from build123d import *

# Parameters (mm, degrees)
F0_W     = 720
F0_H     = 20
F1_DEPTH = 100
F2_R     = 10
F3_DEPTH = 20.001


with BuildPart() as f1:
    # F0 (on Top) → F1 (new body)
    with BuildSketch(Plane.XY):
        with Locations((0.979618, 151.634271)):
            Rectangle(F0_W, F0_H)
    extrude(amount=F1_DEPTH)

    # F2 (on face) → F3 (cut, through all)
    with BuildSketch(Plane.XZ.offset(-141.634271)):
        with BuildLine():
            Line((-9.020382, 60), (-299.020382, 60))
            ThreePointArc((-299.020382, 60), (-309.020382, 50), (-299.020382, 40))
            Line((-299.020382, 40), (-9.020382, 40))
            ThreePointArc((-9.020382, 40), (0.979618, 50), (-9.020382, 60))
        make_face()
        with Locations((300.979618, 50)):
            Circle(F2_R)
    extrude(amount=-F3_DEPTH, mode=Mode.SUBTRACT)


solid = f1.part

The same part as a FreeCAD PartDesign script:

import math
import FreeCAD as App
import Part
import Sketcher

doc = App.newDocument("Part")
params = doc.addObject("Spreadsheet::Sheet", "Params")
for row, (alias, value) in enumerate([
    ("sketch1_width", "720 mm"),
    ("sketch1_height", "20 mm"),
    ("pad1_length", "100 mm"),
    ("sketch2_diameter", "20 mm"),
    ("sketch2_width", "290 mm"),
], start=1):
    params.set(f"A{row}", alias)
    params.set(f"B{row}", "=" + value)
    params.setAlias(f"B{row}", alias)

body = doc.addObject("PartDesign::Body", "Body")

sketch1 = body.newObject("Sketcher::SketchObject", "Sketch")
sketch1.AttachmentSupport = (doc.getObject("XY_Plane"), [""])
sketch1.MapMode = "FlatFace"
sketch1.addGeometry([
    Part.LineSegment(App.Vector(-359, 162, 0), App.Vector(-359, 142, 0)),
    Part.LineSegment(App.Vector(-359, 142, 0), App.Vector(361, 142, 0)),
    Part.LineSegment(App.Vector(361, 142, 0), App.Vector(361, 162, 0)),
    Part.LineSegment(App.Vector(361, 162, 0), App.Vector(-359, 162, 0)),
], False)
sketch1.addConstraint([
    Sketcher.Constraint("Coincident", 0, 2, 1, 1),
    Sketcher.Constraint("Coincident", 1, 2, 2, 1),
    Sketcher.Constraint("Coincident", 2, 2, 3, 1),
    Sketcher.Constraint("Coincident", 3, 2, 0, 1),
    Sketcher.Constraint("Vertical", 0),
    Sketcher.Constraint("Horizontal", 1),
    Sketcher.Constraint("Vertical", 2),
    Sketcher.Constraint("Horizontal", 3),
    Sketcher.Constraint("DistanceX", 1, 1, 1, 2, 720.0),
    Sketcher.Constraint("DistanceY", 0, 2, 0, 1, 20.0),
    Sketcher.Constraint("DistanceX", 0, 2, -1, 1, 359.020382),
    Sketcher.Constraint("DistanceY", -1, 1, 0, 2, 141.634271),
])
sketch1.setExpression("Constraints[8]", "Params.sketch1_width")
sketch1.setExpression("Constraints[9]", "Params.sketch1_height")
pad1 = body.newObject("PartDesign::Pad", "Pad")
pad1.Profile = sketch1
pad1.setExpression("Length", "Params.pad1_length")

sketch2 = body.newObject("Sketcher::SketchObject", "Sketch001")
sketch2.AttachmentSupport = (doc.getObject("XZ_Plane"), [""])
sketch2.MapMode = "FlatFace"
sketch2.AttachmentOffset = App.Placement(App.Vector(0, 0, -141.634271), App.Rotation())
sketch2.addGeometry([
    Part.LineSegment(App.Vector(-9, 60, 0), App.Vector(-299, 60, 0)),
    Part.ArcOfCircle(Part.Circle(App.Vector(-299, 50, 0), App.Vector(0, 0, 1), 10), math.radians(90), math.radians(270)),
    Part.LineSegment(App.Vector(-299, 40, 0), App.Vector(-9, 40, 0)),
    Part.ArcOfCircle(Part.Circle(App.Vector(-9, 50, 0), App.Vector(0, 0, 1), 10), math.radians(-90), math.radians(90)),
    Part.Circle(App.Vector(301, 50, 0), App.Vector(0, 0, 1), 10),
], False)
sketch2.addConstraint([
    Sketcher.Constraint("Tangent", 0, 2, 1, 1),
    Sketcher.Constraint("Tangent", 1, 2, 2, 1),
    Sketcher.Constraint("Tangent", 2, 2, 3, 1),
    Sketcher.Constraint("Tangent", 3, 2, 0, 1),
    Sketcher.Constraint("Horizontal", 0),
    Sketcher.Constraint("Horizontal", 2),
    Sketcher.Constraint("Equal", 3, 4),
    Sketcher.Constraint("Horizontal", 3, 3, 4, 3),
    Sketcher.Constraint("Diameter", 4, 20.0),
    Sketcher.Constraint("DistanceX", 0, 2, 0, 1, 290.0),
    Sketcher.Constraint("DistanceY", -1, 1, 1, 3, 50.0),
    Sketcher.Constraint("DistanceX", 3, 3, 4, 3, 310.0),
    Sketcher.Constraint("DistanceX", 1, 3, -1, 1, 299.020382),
])
sketch2.setExpression("Constraints[8]", "Params.sketch2_diameter")
sketch2.setExpression("Constraints[9]", "Params.sketch2_width")
pocket1 = body.newObject("PartDesign::Pocket", "Pocket")
pocket1.Profile = sketch2
pocket1.Type = "ThroughAll"

doc.recompute()
